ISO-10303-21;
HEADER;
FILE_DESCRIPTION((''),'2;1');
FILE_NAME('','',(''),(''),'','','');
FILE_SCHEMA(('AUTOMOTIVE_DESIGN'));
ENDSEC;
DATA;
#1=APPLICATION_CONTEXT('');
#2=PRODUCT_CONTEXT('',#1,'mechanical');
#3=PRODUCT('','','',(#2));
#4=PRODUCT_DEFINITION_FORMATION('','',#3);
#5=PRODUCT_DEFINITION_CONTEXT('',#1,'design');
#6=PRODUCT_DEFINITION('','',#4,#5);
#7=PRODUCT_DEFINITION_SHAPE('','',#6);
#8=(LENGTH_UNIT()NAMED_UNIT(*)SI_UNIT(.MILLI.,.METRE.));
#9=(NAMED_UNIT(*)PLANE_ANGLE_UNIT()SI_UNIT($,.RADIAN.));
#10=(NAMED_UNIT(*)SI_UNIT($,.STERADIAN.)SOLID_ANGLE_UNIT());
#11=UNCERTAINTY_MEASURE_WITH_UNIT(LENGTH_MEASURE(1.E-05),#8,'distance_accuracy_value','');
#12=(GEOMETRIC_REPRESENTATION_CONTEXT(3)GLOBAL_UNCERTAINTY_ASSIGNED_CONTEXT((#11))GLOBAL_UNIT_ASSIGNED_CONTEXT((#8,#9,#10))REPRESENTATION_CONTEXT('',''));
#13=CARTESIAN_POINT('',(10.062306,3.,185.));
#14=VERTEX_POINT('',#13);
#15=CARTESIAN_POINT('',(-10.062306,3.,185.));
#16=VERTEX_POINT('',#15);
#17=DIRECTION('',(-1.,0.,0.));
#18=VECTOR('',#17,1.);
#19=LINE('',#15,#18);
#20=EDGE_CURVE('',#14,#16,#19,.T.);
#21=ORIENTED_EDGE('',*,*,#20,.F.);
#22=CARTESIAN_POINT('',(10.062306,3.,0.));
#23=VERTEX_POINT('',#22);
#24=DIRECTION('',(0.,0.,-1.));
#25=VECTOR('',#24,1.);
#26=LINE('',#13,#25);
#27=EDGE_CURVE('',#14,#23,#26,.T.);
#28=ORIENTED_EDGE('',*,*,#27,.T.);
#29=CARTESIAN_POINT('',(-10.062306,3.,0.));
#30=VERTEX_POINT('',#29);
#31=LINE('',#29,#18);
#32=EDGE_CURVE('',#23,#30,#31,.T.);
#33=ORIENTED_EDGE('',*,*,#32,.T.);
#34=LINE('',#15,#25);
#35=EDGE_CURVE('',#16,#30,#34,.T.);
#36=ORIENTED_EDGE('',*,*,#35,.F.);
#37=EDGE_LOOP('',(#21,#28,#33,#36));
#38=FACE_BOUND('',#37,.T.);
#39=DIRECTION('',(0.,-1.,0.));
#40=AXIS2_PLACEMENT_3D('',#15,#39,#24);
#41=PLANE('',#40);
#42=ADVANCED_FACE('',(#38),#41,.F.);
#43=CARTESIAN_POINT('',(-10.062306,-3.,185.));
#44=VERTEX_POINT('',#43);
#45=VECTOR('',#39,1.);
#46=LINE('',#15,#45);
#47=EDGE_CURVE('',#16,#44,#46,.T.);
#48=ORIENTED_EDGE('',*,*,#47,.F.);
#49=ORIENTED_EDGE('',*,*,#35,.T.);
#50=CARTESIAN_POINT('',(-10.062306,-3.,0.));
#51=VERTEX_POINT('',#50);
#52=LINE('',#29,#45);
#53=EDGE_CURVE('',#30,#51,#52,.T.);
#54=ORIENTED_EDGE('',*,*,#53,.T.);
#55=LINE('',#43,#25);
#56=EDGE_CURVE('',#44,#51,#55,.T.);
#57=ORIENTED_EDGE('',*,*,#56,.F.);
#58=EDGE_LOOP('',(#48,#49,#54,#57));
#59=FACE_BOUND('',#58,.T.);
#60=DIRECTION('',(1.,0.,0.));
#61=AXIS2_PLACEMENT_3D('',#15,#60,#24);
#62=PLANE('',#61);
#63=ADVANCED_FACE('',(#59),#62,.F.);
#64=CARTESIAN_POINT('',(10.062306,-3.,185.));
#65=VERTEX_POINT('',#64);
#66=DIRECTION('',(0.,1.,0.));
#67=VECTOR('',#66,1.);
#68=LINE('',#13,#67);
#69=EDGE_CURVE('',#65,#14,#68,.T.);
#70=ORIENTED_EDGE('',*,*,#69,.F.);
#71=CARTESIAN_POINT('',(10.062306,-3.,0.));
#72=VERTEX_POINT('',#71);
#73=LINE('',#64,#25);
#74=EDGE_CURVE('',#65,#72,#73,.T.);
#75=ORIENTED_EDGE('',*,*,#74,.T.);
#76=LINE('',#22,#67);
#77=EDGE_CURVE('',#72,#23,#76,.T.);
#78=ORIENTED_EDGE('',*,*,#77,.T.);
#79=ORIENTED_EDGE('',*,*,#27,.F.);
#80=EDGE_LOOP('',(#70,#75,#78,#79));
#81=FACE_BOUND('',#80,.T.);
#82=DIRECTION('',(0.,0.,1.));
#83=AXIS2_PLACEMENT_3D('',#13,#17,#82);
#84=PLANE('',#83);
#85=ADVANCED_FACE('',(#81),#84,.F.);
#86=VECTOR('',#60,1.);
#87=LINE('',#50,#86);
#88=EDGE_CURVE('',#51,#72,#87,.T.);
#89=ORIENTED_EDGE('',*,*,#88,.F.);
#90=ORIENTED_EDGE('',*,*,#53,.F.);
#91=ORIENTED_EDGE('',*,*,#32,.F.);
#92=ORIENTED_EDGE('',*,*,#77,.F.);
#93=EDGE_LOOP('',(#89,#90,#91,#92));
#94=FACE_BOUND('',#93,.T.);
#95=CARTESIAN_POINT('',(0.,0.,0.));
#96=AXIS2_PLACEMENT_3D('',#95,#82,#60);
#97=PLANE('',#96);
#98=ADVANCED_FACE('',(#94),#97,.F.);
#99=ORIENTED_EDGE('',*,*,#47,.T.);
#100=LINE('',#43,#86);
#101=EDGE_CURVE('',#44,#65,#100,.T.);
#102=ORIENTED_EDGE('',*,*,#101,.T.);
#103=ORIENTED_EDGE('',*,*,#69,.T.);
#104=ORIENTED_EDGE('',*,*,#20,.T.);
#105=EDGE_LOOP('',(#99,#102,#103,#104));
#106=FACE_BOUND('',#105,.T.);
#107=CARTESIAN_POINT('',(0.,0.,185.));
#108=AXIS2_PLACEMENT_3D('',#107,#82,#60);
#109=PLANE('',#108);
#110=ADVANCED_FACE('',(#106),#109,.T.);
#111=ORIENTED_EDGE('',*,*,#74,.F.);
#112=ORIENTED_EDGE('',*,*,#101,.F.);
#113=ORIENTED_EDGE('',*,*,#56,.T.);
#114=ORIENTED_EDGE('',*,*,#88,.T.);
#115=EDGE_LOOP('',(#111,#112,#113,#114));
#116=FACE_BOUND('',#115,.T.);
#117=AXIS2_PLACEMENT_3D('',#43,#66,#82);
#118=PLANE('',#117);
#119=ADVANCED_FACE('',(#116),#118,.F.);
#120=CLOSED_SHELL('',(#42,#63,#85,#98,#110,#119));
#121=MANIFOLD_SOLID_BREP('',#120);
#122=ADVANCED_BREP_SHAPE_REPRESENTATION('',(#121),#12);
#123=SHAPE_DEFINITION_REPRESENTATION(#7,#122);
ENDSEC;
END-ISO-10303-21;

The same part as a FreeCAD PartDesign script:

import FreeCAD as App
import Part
import Sketcher

V = App.Vector


def add_polygon(sketch, points):
    """Adds a closed chain of lines whose ends are joined by coincident constraints."""
    first, n = sketch.GeometryCount, len(points)
    for a, b in zip(points, points[1:] + points[:1]):
        sketch.addGeometry(Part.LineSegment(App.Vector(*a, 0), App.Vector(*b, 0)), False)
    for i in range(n):
        sketch.addConstraint(Sketcher.Constraint("Coincident", first + i, 2, first + (i + 1) % n, 1))

doc = App.newDocument("Part")
params = doc.addObject("Spreadsheet::Sheet", "Params")
for row, (alias, value) in enumerate([
    ("sketch1_height", "6 mm"),
    ("pad1_length", "185 mm"),
], start=1):
    params.set(f"A{row}", alias)
    params.set(f"B{row}", "=" + value)
    params.setAlias(f"B{row}", alias)

body = doc.addObject("PartDesign::Body", "Body")

# Sketch on XY plane
sketch1 = body.newObject("Sketcher::SketchObject", "Sketch")
sketch1.AttachmentSupport = (doc.getObject("XY_Plane"), [""])
sketch1.MapMode = "FlatFace"
add_polygon(sketch1, [(-10, 3), (-10, -3), (10, -3), (10, 3)])  # lines 0-3
sketch1.addConstraint([
    Sketcher.Constraint("Vertical", 0),
    Sketcher.Constraint("Horizontal", 1),
    Sketcher.Constraint("Vertical", 2),
    Sketcher.Constraint("Horizontal", 3),
    Sketcher.Constraint("Symmetric", 0, 2, 2, 2, -1, 1),
    Sketcher.Constraint("DistanceY", 0, 2, 0, 1, 6.0),
    Sketcher.Constraint("DistanceX", 1, 1, 1, 2, 20.124612),
])
sketch1.setExpression("Constraints[9]", "Params.sketch1_height")
pad1 = body.newObject("PartDesign::Pad", "Pad")
pad1.Profile = sketch1
pad1.setExpression("Length", "Params.pad1_length")

doc.recompute()
